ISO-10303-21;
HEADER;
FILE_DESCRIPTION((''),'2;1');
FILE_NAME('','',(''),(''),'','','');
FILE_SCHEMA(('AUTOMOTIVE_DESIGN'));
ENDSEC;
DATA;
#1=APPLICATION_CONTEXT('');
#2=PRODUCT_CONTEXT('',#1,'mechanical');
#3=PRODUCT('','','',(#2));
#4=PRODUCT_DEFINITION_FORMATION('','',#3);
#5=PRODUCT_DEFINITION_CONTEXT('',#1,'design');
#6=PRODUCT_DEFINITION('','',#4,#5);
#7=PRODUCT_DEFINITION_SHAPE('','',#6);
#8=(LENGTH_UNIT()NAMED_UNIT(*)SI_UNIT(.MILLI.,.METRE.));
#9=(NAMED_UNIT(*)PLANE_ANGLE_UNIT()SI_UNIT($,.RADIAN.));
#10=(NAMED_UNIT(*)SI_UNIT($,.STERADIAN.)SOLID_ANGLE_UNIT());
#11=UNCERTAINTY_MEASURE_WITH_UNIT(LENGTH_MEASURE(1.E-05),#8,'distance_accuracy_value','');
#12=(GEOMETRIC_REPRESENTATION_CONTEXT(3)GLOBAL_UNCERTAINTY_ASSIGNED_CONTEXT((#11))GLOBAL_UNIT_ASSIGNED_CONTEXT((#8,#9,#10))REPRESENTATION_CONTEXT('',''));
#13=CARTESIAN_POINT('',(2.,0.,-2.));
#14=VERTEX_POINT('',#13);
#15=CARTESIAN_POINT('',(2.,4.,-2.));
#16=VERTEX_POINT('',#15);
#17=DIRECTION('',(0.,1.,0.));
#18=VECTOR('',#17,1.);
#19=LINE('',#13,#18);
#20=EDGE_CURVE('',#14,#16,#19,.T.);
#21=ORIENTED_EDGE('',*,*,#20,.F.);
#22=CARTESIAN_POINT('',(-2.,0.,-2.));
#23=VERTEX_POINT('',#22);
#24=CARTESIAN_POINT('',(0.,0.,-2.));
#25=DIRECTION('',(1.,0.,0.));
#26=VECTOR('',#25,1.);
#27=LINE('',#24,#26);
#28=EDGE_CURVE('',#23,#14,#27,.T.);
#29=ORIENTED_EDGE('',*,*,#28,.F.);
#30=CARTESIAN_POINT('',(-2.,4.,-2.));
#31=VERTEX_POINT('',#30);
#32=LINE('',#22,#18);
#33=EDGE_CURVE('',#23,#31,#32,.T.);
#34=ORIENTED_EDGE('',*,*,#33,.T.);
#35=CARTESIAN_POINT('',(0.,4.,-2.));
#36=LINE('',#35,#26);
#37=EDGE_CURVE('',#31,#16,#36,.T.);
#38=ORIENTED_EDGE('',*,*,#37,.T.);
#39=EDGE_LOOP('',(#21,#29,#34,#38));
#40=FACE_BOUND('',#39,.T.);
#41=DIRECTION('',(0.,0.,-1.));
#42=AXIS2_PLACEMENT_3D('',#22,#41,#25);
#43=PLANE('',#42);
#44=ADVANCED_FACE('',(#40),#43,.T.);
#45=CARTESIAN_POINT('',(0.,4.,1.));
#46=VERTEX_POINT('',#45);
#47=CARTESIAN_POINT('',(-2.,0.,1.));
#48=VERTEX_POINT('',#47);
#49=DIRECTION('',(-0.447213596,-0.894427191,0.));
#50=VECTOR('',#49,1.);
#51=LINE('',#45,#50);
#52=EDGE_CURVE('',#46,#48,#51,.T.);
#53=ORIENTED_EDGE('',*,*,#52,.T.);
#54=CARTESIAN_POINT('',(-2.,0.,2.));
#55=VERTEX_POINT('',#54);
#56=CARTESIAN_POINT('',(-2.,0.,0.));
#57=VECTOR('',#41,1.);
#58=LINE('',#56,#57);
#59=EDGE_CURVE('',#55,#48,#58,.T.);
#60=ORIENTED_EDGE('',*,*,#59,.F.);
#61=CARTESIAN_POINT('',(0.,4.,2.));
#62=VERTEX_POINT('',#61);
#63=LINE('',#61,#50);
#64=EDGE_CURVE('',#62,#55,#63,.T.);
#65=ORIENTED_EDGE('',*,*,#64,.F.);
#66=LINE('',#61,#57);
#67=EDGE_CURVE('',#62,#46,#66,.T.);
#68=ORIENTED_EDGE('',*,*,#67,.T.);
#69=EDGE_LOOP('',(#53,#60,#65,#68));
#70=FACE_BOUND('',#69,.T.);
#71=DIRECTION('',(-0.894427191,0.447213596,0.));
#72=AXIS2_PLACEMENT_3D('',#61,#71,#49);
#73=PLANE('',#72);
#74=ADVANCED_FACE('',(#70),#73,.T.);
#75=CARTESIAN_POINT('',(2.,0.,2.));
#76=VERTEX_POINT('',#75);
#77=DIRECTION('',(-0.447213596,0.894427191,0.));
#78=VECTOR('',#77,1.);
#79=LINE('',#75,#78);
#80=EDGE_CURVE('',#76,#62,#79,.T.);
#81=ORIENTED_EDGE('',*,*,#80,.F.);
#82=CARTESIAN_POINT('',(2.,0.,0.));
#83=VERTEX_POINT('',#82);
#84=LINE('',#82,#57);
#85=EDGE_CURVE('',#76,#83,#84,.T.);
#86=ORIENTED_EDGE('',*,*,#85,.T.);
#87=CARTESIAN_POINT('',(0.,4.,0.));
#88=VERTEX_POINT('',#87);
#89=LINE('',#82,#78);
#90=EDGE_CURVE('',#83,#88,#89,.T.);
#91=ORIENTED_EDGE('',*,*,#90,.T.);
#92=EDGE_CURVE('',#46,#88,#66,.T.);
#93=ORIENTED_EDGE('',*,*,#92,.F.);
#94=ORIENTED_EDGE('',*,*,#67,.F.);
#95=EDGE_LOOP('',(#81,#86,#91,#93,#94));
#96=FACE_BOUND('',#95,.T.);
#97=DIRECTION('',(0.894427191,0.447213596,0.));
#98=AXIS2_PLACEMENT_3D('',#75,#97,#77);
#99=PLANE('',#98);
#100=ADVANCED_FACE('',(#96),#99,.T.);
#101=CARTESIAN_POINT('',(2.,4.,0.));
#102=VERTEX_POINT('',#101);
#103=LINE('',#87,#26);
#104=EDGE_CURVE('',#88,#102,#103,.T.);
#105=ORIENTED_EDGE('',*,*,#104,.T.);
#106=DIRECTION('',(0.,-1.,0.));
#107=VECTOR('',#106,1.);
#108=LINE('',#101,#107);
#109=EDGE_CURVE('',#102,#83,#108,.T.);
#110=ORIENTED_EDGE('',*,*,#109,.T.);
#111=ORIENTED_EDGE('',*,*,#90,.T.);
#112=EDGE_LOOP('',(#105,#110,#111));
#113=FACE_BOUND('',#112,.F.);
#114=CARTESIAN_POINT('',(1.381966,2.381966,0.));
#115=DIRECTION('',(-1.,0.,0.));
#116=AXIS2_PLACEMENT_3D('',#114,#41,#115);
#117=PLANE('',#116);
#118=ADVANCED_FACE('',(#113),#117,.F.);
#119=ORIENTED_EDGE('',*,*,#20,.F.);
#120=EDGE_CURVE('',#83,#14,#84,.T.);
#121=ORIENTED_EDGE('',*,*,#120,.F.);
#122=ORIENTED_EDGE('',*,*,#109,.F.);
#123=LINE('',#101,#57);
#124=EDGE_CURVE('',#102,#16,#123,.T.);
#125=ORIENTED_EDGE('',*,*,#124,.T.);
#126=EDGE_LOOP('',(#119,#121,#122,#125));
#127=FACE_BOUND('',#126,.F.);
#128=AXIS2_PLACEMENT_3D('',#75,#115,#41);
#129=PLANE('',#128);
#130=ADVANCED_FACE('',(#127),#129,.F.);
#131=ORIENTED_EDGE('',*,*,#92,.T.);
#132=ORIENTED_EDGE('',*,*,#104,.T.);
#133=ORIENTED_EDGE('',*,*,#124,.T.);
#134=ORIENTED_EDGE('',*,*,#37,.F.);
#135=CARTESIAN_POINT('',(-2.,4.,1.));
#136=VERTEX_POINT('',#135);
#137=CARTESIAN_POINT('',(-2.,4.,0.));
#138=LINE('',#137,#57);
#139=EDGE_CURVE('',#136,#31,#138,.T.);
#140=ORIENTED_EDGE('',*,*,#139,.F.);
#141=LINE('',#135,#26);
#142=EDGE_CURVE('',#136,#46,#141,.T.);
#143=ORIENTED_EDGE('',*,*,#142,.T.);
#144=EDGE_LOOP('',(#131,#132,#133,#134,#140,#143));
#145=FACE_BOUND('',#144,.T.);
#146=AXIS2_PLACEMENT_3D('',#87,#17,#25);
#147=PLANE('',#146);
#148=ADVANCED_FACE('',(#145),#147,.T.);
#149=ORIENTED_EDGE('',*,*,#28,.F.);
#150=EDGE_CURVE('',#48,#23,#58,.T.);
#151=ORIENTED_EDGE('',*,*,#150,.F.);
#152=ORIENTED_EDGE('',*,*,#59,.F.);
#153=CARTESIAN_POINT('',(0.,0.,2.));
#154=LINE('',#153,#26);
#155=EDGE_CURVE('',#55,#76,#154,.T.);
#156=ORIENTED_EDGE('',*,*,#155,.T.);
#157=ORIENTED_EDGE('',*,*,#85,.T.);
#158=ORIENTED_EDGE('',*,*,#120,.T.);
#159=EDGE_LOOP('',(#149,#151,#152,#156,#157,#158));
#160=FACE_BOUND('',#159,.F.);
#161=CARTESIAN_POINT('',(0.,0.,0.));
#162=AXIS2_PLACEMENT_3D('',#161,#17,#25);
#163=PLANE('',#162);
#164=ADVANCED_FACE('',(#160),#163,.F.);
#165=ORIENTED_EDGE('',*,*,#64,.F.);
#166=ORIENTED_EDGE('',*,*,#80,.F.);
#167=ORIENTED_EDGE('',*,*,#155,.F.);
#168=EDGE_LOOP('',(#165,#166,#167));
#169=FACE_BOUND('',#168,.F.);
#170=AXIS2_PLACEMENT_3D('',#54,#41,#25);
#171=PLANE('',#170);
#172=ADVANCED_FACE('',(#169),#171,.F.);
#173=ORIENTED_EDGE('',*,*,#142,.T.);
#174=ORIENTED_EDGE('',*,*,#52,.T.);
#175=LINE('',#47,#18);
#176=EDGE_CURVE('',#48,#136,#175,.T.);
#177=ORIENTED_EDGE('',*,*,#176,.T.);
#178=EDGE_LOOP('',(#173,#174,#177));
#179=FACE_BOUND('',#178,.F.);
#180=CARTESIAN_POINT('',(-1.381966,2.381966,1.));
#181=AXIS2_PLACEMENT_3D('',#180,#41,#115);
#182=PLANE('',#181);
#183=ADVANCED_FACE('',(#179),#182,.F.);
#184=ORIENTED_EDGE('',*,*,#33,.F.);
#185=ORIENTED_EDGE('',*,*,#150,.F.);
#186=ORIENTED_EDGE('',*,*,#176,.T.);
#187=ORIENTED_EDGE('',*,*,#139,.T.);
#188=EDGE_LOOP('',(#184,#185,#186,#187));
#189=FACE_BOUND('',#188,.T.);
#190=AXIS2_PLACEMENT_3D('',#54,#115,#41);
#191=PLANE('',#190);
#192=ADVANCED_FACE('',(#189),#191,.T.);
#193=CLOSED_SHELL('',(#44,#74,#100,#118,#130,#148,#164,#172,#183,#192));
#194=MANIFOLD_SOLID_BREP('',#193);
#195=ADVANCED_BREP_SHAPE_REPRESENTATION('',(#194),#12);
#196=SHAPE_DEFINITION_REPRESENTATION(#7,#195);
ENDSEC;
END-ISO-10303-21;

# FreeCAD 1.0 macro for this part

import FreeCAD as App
import Part
import Sketcher
from FreeCAD import Vector

doc = App.newDocument("Part")
body = doc.addObject("PartDesign::Body", "Body")

# Sketch on XZ plane
sketch1 = body.newObject("Sketcher::SketchObject", "Sketch")
sketch1.AttachmentSupport = (doc.getObject("XZ_Plane"), [""])
sketch1.MapMode = "FlatFace"
sketch1.addGeometry([
    Part.LineSegment(Vector(-2, -2, 0), Vector(-2, 2, 0)),
    Part.LineSegment(Vector(-2, 2, 0), Vector(2, 2, 0)),
    Part.LineSegment(Vector(2, 2, 0), Vector(2, -2, 0)),
    Part.LineSegment(Vector(2, -2, 0), Vector(-2, -2, 0)),
], False)
sketch1.addConstraint([
    Sketcher.Constraint("Coincident", 0, 2, 1, 1),
    Sketcher.Constraint("Coincident", 1, 2, 2, 1),
    Sketcher.Constraint("Coincident", 2, 2, 3, 1),
    Sketcher.Constraint("Coincident", 3, 2, 0, 1),
    Sketcher.Constraint("Vertical", 0),
    Sketcher.Constraint("Horizontal", 1),
    Sketcher.Constraint("Vertical", 2),
    Sketcher.Constraint("Horizontal", 3),
    Sketcher.Constraint("Symmetric", 0, 2, 2, 2, -1, 1),
    Sketcher.Constraint("Equal", 3, 0),
    Sketcher.Constraint("DistanceX", 1, 1, 1, 2, 4.0),
])
pad1 = body.newObject("PartDesign::Pad", "Pad")
pad1.Profile = sketch1
pad1.Length = 4
pad1.Reversed = True

# Sketch on XY plane
sketch2 = body.newObject("Sketcher::SketchObject", "Sketch001")
sketch2.AttachmentSupport = (doc.getObject("XY_Plane"), [""])
sketch2.MapMode = "FlatFace"
sketch2.AttachmentOffset = App.Placement(Vector(0, 0, 2), App.Rotation())
sketch2.addGeometry([
    Part.LineSegment(Vector(2, 4, 0), Vector(0, 4, 0)),
    Part.LineSegment(Vector(0, 4, 0), Vector(2, 0, 0)),
    Part.LineSegment(Vector(2, 0, 0), Vector(2, 4, 0)),
], False)
sketch2.addConstraint([
    Sketcher.Constraint("Coincident", 0, 2, 1, 1),
    Sketcher.Constraint("Coincident", 1, 2, 2, 1),
    Sketcher.Constraint("Coincident", 2, 2, 0, 1),
    Sketcher.Constraint("Horizontal", 0),
    Sketcher.Constraint("Vertical", 2),
    Sketcher.Constraint("PointOnObject", 0, 2, -2),
    Sketcher.Constraint("PointOnObject", 1, 2, -1),
    Sketcher.Constraint("DistanceX", 0, 2, 0, 1, 2.0),
    Sketcher.Constraint("DistanceY", 2, 1, 2, 2, 4.0),
])
pocket1 = body.newObject("PartDesign::Pocket", "Pocket")
pocket1.Profile = sketch2
pocket1.Length = 2

# Sketch on XY plane
sketch3 = body.newObject("Sketcher::SketchObject", "Sketch002")
sketch3.AttachmentSupport = (doc.getObject("XY_Plane"), [""])
sketch3.MapMode = "FlatFace"
sketch3.AttachmentOffset = App.Placement(Vector(0, 0, 2), App.Rotation())
sketch3.addGeometry([
    Part.LineSegment(Vector(-2, 0, 0), Vector(0, 4, 0)),
    Part.LineSegment(Vector(0, 4, 0), Vector(-2, 4, 0)),
    Part.LineSegment(Vector(-2, 4, 0), Vector(-2, 0, 0)),
], False)
sketch3.addConstraint([
    Sketcher.Constraint("Coincident", 0, 2, 1, 1),
    Sketcher.Constraint("Coincident", 1, 2, 2, 1),
    Sketcher.Constraint("Coincident", 2, 2, 0, 1),
    Sketcher.Constraint("Horizontal", 1),
    Sketcher.Constraint("Vertical", 2),
    Sketcher.Constraint("PointOnObject", 0, 2, -2),
    Sketcher.Constraint("PointOnObject", 2, 2, -1),
    Sketcher.Constraint("DistanceX", 1, 2, 1, 1, 2.0),
    Sketcher.Constraint("DistanceY", 2, 2, 2, 1, 4.0),
])
pocket2 = body.newObject("PartDesign::Pocket", "Pocket001")
pocket2.Profile = sketch3
pocket2.Length = 1

doc.recompute()
